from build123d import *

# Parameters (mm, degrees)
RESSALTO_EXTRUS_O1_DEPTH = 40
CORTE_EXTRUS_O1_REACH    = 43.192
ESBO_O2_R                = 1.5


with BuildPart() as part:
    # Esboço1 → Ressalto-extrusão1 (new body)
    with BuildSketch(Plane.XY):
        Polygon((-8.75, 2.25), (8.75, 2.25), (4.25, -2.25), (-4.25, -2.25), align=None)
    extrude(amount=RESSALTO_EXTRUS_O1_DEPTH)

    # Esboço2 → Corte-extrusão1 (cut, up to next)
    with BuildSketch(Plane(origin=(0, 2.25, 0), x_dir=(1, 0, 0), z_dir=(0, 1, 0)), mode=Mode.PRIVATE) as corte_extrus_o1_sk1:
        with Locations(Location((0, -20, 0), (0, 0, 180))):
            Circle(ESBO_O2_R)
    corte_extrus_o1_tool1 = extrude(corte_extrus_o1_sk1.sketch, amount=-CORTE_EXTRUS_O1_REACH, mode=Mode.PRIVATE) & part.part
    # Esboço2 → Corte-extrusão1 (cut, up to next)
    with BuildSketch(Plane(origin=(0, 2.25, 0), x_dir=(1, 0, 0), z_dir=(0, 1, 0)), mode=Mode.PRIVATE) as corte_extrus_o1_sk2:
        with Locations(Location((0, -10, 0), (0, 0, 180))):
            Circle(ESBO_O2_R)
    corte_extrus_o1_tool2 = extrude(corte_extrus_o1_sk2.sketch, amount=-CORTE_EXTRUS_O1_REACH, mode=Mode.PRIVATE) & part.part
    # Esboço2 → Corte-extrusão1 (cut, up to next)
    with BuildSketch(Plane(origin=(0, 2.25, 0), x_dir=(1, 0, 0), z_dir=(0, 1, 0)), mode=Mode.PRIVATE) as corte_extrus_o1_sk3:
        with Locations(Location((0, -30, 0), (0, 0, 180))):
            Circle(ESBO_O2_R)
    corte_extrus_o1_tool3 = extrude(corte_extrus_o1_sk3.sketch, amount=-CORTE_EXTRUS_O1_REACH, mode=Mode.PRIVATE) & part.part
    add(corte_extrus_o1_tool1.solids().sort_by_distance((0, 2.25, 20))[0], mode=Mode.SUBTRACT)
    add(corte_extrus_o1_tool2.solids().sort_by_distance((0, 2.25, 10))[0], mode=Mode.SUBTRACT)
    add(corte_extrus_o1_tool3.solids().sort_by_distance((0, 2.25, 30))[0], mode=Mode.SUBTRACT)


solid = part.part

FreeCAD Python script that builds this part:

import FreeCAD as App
import Part
import Sketcher

V = App.Vector
Q = App.Units.Quantity

doc = App.newDocument("Part")
body = doc.addObject("PartDesign::Body", "Body")

# Sketch on XY plane
sketch1 = body.newObject("Sketcher::SketchObject", "Sketch")
sketch1.AttachmentSupport = (doc.getObject("XY_Plane"), [""])
sketch1.MapMode = "FlatFace"
sketch1.addGeometry([
    Part.LineSegment(V(9, 2, 0), V(-9, 2, 0)),
    Part.LineSegment(V(-9, 2, 0), V(-4, -2, 0)),
    Part.LineSegment(V(-4, -2, 0), V(4, -2, 0)),
    Part.LineSegment(V(4, -2, 0), V(9, 2, 0)),
], False)
sketch1.addConstraint([
    Sketcher.Constraint("Coincident", 0, 2, 1, 1),
    Sketcher.Constraint("Coincident", 1, 2, 2, 1),
    Sketcher.Constraint("Coincident", 2, 2, 3, 1),
    Sketcher.Constraint("Coincident", 3, 2, 0, 1),
    Sketcher.Constraint("Horizontal", 0),
    Sketcher.Constraint("Horizontal", 2),
    Sketcher.Constraint("Perpendicular", 1, 3),
    Sketcher.Constraint("Equal", 1, 3),
    Sketcher.Constraint("DistanceX", 0, 2, 0, 1, Q("17.5 mm")),
    Sketcher.Constraint("DistanceX", 2, 1, 2, 2, Q("8.5 mm")),
    Sketcher.Constraint("DistanceX", 0, 2, -1, 1, Q("8.75 mm")),
    Sketcher.Constraint("DistanceY", -1, 1, 0, 2, Q("2.25 mm")),
])
pad1 = body.newObject("PartDesign::Pad", "Pad")
pad1.Profile = sketch1
pad1.Length = 40

# Sketch on XZ plane
sketch2 = body.newObject("Sketcher::SketchObject", "Sketch001")
sketch2.AttachmentSupport = (doc.getObject("XZ_Plane"), [""])
sketch2.MapMode = "FlatFace"
sketch2.AttachmentOffset = App.Placement(V(0, 0, -2.25), App.Rotation())
sketch2.addGeometry(Part.Circle(V(0, 20, 0), V(0, 0, 1), 1.5), False)
sketch2.addConstraint([
    Sketcher.Constraint("PointOnObject", 0, 3, -2),
    Sketcher.Constraint("Diameter", 0, Q("3 mm")),
    Sketcher.Constraint("DistanceY", -1, 1, 0, 3, Q("20 mm")),
])
pocket1 = body.newObject("PartDesign::Pocket", "Pocket")
pocket1.Profile = sketch2
pocket1.Type = "UpToFirst"
pocket1.Reversed = True

# Sketch on XZ plane
sketch3 = body.newObject("Sketcher::SketchObject", "Sketch002")
sketch3.AttachmentSupport = (doc.getObject("XZ_Plane"), [""])
sketch3.MapMode = "FlatFace"
sketch3.AttachmentOffset = App.Placement(V(0, 0, -2.25), App.Rotation())
sketch3.addGeometry(Part.Circle(V(0, 10, 0), V(0, 0, 1), 1.5), False)
sketch3.addConstraint([
    Sketcher.Constraint("PointOnObject", 0, 3, -2),
    Sketcher.Constraint("Diameter", 0, Q("3 mm")),
    Sketcher.Constraint("DistanceY", -1, 1, 0, 3, Q("10 mm")),
])
pocket2 = body.newObject("PartDesign::Pocket", "Pocket001")
pocket2.Profile = sketch3
pocket2.Type = "UpToFirst"
pocket2.Reversed = True

# Sketch on XZ plane
sketch4 = body.newObject("Sketcher::SketchObject", "Sketch003")
sketch4.AttachmentSupport = (doc.getObject("XZ_Plane"), [""])
sketch4.MapMode = "FlatFace"
sketch4.AttachmentOffset = App.Placement(V(0, 0, -2.25), App.Rotation())
sketch4.addGeometry(Part.Circle(V(0, 30, 0), V(0, 0, 1), 1.5), False)
sketch4.addConstraint([
    Sketcher.Constraint("PointOnObject", 0, 3, -2),
    Sketcher.Constraint("Diameter", 0, Q("3 mm")),
    Sketcher.Constraint("DistanceY", -1, 1, 0, 3, Q("30 mm")),
])
pocket3 = body.newObject("PartDesign::Pocket", "Pocket002")
pocket3.Profile = sketch4
pocket3.Type = "UpToFirst"
pocket3.Reversed = True

doc.recompute()
